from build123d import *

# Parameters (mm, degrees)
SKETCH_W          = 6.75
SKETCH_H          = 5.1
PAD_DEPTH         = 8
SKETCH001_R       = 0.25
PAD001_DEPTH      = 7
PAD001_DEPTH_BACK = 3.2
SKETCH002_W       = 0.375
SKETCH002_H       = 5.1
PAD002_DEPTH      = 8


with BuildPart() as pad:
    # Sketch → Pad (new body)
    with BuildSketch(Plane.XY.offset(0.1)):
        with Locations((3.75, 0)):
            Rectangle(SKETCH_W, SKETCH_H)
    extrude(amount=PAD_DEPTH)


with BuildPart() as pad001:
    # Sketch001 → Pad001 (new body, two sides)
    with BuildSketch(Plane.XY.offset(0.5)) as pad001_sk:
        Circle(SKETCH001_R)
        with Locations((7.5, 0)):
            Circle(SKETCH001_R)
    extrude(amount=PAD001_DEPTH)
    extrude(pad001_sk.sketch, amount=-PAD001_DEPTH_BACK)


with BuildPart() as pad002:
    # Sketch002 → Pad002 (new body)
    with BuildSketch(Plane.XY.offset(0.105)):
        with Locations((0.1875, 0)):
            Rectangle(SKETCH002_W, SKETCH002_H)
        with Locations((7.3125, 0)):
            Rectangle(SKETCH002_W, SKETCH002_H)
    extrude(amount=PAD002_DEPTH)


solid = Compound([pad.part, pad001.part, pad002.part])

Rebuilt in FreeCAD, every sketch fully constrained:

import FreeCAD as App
import Part
import Sketcher
from FreeCAD import Vector


def add_polygon(sketch, points):
    """Adds a closed chain of lines whose ends are joined by coincident constraints."""
    first, n = sketch.GeometryCount, len(points)
    for a, b in zip(points, points[1:] + points[:1]):
        sketch.addGeometry(Part.LineSegment(App.Vector(*a, 0), App.Vector(*b, 0)), False)
    for i in range(n):
        sketch.addConstraint(Sketcher.Constraint("Coincident", first + i, 2, first + (i + 1) % n, 1))

doc = App.newDocument("Part")
body = doc.addObject("PartDesign::Body", "Body")

sketch1 = doc.addObject("Sketcher::SketchObject", "Sketch")
body.addObject(sketch1)
sketch1.AttachmentSupport = (doc.XY_Plane, [""])
sketch1.MapMode = "FlatFace"
sketch1.AttachmentOffset = App.Placement(Vector(0, 0, 0.1), App.Rotation())
add_polygon(sketch1, [(0, 3), (0, -3), (7, -3), (7, 3)])
sketch1.addConstraint([
    Sketcher.Constraint("Vertical", 0),
    Sketcher.Constraint("Horizontal", 1),
    Sketcher.Constraint("Vertical", 2),
    Sketcher.Constraint("Horizontal", 3),
    Sketcher.Constraint("DistanceY", 0, 2, 0, 1, 5.1),
    Sketcher.Constraint("DistanceX", 1, 1, 1, 2, 6.75),
    Sketcher.Constraint("DistanceY", 0, 2, -1, 1, 2.55),
    Sketcher.Constraint("DistanceX", -1, 1, 0, 2, 0.375),
])
pad1 = doc.addObject("PartDesign::Pad", "Pad")
body.addObject(pad1)
pad1.Profile = sketch1
pad1.Length = 8
body2 = doc.addObject("PartDesign::Body", "Body001")
body2.AllowCompound = True

sketch2 = doc.addObject("Sketcher::SketchObject", "Sketch001")
body2.addObject(sketch2)
sketch2.AttachmentSupport = (doc.getObject("XY_Plane001"), [""])
sketch2.MapMode = "FlatFace"
sketch2.AttachmentOffset = App.Placement(Vector(0, 0, 0.5), App.Rotation())
sketch2.addGeometry([
    Part.Circle(Vector(0, 0, 0), Vector(0, 0, 1), 0.25),
    Part.Circle(Vector(7.5, 0, 0), Vector(0, 0, 1), 0.25),
], False)
sketch2.addConstraint([
    Sketcher.Constraint("Coincident", 0, 3, -1, 1),
    Sketcher.Constraint("Equal", 0, 1),
    Sketcher.Constraint("PointOnObject", 1, 3, -1),
    Sketcher.Constraint("Diameter", 0, 0.5),
    Sketcher.Constraint("DistanceX", -1, 1, 1, 3, 7.5),
])
pad2 = doc.addObject("PartDesign::Pad", "Pad001")
body2.addObject(pad2)
pad2.Profile = sketch2
pad2.Type = "TwoLengths"
pad2.Length = 7
pad2.Length2 = 3.2
body3 = doc.addObject("PartDesign::Body", "Body002")
body3.AllowCompound = True

sketch3 = doc.addObject("Sketcher::SketchObject", "Sketch002")
body3.addObject(sketch3)
sketch3.AttachmentSupport = (doc.getObject("XY_Plane002"), [""])
sketch3.MapMode = "FlatFace"
sketch3.AttachmentOffset = App.Placement(Vector(0, 0, 0.105), App.Rotation())
add_polygon(sketch3, [(0, 2.55), (0, -2.55), (0.38, -2.55), (0.38, 2.55)])
add_polygon(sketch3, [(7.12, 2.55), (7.12, -2.55), (7.5, -2.55), (7.5, 2.55)])
sketch3.addConstraint([
    Sketcher.Constraint("Vertical", 0),
    Sketcher.Constraint("Horizontal", 1),
    Sketcher.Constraint("Vertical", 2),
    Sketcher.Constraint("Horizontal", 3),
    Sketcher.Constraint("Vertical", 4),
    Sketcher.Constraint("Horizontal", 5),
    Sketcher.Constraint("Vertical", 6),
    Sketcher.Constraint("Horizontal", 7),
    Sketcher.Constraint("Symmetric", 0, 2, 3, 2, -1, 1),
    Sketcher.Constraint("Horizontal", 1, 2, 4, 2),
    Sketcher.Constraint("Horizontal", 3, 2, 6, 2),
    Sketcher.Constraint("Equal", 3, 5),
    Sketcher.Constraint("DistanceY", 0, 2, 0, 1, 5.1),
    Sketcher.Constraint("DistanceX", -1, 1, 5, 2, 7.5),
    Sketcher.Constraint("DistanceX", 1, 1, 1, 2, 0.375),
])
pad3 = doc.addObject("PartDesign::Pad", "Pad002")
body3.addObject(pad3)
pad3.Profile = sketch3
pad3.Length = 8

doc.recompute()
